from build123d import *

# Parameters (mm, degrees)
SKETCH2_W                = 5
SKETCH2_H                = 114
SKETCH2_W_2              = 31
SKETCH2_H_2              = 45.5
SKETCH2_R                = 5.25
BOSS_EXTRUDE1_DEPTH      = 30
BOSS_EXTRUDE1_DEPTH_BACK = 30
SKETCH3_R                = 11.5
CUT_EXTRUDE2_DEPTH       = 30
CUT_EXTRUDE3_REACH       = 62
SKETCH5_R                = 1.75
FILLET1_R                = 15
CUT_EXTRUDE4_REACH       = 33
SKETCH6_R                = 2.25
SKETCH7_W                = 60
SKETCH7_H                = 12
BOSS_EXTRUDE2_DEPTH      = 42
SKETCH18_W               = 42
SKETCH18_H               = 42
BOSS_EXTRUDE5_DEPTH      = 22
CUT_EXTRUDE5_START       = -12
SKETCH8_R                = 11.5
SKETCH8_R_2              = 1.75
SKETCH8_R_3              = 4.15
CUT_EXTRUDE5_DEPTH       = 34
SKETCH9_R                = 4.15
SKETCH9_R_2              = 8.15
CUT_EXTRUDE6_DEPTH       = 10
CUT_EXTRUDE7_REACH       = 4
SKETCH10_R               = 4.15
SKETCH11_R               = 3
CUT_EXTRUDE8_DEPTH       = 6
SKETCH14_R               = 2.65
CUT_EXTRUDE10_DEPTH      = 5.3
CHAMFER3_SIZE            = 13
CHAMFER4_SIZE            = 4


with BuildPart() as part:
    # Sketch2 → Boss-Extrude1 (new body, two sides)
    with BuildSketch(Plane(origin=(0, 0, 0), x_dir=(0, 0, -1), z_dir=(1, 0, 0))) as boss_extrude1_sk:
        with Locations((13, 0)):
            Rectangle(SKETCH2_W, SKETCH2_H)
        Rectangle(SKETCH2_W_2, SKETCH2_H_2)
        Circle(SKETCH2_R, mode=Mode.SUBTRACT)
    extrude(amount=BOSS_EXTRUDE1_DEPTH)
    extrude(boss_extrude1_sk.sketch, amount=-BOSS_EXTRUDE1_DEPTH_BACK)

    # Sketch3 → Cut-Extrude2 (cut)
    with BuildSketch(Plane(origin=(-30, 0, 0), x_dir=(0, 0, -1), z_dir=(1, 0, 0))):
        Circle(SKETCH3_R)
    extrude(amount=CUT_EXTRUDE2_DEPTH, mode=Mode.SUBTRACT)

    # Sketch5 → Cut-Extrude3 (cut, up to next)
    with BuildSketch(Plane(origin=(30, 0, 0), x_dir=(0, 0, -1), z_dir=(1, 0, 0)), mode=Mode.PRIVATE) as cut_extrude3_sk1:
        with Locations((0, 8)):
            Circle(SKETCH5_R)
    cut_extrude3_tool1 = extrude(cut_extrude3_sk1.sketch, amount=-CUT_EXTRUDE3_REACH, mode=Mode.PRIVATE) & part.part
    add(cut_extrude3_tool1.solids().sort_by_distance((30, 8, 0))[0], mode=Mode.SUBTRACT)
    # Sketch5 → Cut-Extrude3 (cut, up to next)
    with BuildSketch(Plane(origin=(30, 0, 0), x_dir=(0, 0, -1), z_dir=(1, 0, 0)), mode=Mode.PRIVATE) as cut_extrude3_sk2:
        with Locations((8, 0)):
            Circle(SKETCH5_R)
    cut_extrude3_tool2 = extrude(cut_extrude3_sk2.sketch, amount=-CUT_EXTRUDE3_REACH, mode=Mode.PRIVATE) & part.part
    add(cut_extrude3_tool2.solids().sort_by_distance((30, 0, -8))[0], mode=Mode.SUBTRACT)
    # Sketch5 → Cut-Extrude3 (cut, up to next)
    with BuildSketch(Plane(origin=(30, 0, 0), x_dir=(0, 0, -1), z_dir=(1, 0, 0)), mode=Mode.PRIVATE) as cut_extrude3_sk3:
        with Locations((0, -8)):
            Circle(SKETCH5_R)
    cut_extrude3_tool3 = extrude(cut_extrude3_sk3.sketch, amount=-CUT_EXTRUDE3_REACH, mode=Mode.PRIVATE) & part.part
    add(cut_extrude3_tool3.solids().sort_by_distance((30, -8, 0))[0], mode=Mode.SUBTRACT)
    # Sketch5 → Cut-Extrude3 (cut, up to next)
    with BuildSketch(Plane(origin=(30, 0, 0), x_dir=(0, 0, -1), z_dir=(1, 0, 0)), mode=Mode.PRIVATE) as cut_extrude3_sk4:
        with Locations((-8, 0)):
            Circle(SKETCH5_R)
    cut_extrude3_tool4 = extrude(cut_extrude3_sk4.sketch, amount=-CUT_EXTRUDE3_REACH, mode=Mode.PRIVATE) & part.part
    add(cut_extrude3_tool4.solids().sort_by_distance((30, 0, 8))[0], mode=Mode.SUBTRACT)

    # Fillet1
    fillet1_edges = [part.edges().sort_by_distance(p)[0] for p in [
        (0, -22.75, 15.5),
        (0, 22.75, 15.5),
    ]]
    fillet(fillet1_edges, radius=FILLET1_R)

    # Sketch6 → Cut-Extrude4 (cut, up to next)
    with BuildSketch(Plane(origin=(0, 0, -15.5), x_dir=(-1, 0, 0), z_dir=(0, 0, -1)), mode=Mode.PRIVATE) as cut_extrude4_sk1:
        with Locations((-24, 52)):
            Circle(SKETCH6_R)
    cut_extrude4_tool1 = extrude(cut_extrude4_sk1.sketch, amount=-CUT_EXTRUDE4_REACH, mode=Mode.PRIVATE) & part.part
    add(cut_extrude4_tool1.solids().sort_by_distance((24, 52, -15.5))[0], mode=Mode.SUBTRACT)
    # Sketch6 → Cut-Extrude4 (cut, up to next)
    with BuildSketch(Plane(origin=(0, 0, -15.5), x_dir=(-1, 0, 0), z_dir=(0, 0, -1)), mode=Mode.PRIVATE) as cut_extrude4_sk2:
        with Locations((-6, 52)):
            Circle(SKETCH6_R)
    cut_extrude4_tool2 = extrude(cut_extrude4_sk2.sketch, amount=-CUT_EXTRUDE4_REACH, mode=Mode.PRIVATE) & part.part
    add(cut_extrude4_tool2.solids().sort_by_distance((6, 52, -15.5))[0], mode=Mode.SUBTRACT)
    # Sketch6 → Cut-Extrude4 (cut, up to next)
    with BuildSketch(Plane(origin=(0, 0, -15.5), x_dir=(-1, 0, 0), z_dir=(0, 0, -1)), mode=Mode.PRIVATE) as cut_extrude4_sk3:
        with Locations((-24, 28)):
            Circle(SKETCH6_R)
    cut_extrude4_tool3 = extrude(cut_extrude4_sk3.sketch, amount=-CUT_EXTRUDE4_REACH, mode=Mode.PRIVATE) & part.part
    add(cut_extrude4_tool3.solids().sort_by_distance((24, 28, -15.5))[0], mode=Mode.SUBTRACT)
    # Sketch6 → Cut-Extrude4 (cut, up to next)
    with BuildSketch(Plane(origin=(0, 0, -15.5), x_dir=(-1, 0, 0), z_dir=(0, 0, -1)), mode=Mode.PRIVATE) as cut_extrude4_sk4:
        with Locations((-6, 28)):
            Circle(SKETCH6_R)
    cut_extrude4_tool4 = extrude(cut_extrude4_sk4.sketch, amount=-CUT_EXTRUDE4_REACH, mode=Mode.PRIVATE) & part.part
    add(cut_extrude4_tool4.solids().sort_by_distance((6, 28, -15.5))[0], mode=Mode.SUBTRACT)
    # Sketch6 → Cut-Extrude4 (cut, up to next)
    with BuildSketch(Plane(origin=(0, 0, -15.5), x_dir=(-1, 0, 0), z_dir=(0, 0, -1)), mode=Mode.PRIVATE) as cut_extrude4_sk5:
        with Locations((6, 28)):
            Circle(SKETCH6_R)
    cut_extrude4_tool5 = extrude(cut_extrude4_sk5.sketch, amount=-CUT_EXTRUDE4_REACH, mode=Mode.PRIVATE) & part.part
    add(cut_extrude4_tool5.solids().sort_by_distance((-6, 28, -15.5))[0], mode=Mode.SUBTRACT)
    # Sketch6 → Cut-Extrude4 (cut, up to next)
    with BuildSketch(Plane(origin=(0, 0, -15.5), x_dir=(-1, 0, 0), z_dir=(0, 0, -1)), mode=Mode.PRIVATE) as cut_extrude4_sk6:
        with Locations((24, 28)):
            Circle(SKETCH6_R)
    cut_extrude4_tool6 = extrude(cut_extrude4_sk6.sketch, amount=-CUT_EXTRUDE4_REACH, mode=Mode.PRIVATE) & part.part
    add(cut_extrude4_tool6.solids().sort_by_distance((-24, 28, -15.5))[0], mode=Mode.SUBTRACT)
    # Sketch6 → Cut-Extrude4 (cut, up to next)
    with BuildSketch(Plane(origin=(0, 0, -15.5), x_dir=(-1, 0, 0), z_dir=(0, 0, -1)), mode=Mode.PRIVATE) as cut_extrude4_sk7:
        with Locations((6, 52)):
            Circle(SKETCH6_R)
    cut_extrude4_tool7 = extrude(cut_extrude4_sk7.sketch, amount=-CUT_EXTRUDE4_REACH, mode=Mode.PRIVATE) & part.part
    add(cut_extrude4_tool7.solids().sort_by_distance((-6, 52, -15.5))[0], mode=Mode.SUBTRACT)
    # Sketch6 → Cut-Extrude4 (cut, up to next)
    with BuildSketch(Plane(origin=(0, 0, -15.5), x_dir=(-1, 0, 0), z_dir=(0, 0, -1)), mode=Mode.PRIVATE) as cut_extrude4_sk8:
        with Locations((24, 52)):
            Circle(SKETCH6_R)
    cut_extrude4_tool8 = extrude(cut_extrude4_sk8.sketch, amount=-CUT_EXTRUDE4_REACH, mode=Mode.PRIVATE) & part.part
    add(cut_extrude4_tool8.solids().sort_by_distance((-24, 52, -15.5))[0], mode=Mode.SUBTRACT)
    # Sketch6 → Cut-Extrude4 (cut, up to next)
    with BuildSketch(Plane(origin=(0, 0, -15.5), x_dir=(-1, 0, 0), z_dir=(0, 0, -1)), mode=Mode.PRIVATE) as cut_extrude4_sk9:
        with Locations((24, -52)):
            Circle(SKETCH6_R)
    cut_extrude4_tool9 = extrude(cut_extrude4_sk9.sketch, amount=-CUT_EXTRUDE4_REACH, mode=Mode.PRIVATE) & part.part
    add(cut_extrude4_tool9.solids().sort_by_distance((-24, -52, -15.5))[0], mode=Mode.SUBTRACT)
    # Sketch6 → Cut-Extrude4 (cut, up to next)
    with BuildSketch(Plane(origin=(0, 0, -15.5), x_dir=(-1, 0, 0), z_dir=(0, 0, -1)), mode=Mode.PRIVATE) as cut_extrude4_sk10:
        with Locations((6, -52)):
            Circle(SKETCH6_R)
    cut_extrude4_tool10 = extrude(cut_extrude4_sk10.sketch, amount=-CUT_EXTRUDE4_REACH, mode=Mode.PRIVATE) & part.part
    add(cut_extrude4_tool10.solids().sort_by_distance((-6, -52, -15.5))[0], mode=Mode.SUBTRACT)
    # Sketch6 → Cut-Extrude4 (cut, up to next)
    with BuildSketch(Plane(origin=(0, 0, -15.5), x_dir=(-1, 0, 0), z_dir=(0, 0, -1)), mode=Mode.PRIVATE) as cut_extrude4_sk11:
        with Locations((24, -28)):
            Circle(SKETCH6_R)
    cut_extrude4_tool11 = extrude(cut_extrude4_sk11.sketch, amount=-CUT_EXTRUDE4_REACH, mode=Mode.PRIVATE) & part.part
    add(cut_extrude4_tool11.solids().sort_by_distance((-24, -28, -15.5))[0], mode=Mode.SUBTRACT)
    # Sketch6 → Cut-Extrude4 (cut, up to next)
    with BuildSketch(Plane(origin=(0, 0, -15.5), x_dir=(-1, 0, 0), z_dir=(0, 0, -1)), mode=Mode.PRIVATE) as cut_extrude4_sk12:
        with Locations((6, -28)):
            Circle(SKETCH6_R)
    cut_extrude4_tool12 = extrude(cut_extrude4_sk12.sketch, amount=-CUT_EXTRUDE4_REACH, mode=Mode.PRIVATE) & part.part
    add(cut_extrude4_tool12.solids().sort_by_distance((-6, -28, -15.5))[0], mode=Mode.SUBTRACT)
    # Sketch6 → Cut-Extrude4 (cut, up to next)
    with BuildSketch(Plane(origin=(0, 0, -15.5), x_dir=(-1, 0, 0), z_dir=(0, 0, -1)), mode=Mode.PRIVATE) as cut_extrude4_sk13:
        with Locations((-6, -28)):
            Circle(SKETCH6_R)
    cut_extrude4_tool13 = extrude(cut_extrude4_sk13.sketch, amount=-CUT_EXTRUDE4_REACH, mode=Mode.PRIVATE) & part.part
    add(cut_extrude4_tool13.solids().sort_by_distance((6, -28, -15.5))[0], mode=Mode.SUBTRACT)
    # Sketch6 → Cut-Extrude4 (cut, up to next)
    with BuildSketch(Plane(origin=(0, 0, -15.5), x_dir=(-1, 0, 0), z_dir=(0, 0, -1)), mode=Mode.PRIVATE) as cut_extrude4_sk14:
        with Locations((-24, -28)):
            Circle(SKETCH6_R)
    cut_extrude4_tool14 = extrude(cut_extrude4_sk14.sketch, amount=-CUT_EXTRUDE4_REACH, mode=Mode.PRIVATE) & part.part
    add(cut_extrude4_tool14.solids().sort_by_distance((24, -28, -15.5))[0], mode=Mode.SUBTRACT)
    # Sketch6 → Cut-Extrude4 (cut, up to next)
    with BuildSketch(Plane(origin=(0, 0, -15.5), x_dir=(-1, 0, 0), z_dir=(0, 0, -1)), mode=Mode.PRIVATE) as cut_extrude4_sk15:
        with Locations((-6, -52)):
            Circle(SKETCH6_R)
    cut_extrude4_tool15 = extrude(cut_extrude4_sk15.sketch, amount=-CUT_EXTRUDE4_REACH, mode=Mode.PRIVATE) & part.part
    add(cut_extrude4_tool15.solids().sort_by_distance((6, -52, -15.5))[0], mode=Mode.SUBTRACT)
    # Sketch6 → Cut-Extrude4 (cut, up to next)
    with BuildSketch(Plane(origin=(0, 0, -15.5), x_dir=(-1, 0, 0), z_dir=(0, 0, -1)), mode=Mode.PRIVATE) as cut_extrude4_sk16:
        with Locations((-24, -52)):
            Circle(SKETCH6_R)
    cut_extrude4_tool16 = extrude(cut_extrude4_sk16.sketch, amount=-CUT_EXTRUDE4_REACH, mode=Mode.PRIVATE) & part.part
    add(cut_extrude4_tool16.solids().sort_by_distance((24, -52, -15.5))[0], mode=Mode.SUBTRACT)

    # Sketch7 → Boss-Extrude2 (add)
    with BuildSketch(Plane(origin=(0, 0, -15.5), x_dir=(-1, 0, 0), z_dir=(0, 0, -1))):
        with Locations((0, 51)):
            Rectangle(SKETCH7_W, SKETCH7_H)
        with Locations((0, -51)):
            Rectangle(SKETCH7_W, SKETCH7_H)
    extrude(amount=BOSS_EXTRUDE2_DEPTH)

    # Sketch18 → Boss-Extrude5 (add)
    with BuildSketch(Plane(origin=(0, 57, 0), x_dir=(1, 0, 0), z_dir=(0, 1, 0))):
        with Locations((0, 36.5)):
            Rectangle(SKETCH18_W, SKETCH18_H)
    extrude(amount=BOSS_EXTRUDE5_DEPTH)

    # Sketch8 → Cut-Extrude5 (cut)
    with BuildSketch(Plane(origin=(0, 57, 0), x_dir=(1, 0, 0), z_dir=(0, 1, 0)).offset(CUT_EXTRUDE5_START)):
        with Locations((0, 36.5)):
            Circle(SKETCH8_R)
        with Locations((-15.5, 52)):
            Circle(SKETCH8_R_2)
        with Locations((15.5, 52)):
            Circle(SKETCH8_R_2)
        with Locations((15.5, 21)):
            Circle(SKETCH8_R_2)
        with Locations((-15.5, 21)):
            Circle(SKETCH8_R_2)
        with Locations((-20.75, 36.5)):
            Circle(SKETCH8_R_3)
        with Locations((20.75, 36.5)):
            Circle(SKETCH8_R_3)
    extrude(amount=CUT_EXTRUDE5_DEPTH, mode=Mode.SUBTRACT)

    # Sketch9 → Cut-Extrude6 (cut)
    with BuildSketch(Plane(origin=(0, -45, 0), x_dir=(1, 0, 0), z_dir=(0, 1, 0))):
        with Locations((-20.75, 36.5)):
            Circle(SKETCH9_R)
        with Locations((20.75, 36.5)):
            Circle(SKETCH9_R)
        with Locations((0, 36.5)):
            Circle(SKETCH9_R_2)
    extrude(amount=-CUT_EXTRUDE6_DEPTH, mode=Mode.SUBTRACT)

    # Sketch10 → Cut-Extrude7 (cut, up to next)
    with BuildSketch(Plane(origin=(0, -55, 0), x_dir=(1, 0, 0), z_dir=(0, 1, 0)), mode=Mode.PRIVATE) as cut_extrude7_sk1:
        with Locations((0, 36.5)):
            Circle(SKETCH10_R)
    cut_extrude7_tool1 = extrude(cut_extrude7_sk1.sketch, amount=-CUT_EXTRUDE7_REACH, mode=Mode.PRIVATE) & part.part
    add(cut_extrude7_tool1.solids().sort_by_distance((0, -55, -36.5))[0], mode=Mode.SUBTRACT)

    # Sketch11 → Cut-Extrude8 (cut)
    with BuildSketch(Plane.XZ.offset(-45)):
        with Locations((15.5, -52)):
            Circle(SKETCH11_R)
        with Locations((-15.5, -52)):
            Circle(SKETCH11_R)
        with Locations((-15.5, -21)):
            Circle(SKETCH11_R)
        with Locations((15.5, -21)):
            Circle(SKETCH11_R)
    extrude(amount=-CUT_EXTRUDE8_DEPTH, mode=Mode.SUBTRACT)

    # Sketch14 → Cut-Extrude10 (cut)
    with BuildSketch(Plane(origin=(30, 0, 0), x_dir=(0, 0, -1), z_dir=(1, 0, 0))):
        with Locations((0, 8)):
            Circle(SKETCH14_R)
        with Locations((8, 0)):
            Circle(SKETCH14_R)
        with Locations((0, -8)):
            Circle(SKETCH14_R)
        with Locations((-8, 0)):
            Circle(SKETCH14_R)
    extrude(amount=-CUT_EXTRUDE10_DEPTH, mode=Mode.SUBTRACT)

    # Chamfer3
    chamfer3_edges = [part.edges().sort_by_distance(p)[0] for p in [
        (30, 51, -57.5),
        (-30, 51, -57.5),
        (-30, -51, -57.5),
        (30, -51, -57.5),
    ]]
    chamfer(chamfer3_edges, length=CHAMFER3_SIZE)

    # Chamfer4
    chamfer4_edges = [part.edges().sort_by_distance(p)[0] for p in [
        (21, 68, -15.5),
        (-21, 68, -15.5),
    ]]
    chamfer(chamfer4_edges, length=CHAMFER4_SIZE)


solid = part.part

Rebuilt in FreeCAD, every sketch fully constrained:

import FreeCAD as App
import Part
import Sketcher
from FreeCAD import Vector


def edges_at(feature, points):
    """Names of the edges that pass closest to the given points."""
    edges = feature.Shape.Edges
    near = lambda p: min(range(len(edges)), key=lambda i: edges[i].distToShape(Part.Vertex(*p))[0])
    return sorted({f"Edge{near(p) + 1}" for p in points})

doc = App.newDocument("Part")
params = doc.addObject("Spreadsheet::Sheet", "Params")
for row, (alias, value) in enumerate([
    ("sketch1_diameter", "10.5 mm"),
    ("sketch1_width", "114 mm"),
    ("sketch1_height", "5 mm"),
    ("sketch1_height2", "26 mm"),
    ("sketch1_width2", "45.5 mm"),
    ("pad1_length", "30 mm"),
    ("pad1_length2", "30 mm"),
    ("sketch2_diameter", "23 mm"),
    ("pocket1_length", "30 mm"),
    ("sketch3_diameter", "3.5 mm"),
    ("sketch4_diameter", "3.5 mm"),
    ("sketch5_diameter", "3.5 mm"),
    ("sketch6_diameter", "3.5 mm"),
    ("fillet_radius", "15 mm"),
    ("sketch7_diameter", "4.5 mm"),
    ("sketch8_diameter", "4.5 mm"),
    ("sketch9_diameter", "4.5 mm"),
    ("sketch10_diameter", "4.5 mm"),
    ("sketch11_diameter", "4.5 mm"),
    ("sketch12_diameter", "4.5 mm"),
    ("sketch13_diameter", "4.5 mm"),
    ("sketch14_diameter", "4.5 mm"),
    ("sketch15_diameter", "4.5 mm"),
    ("sketch16_diameter", "4.5 mm"),
    ("sketch17_diameter", "4.5 mm"),
    ("sketch18_diameter", "4.5 mm"),
    ("sketch19_diameter", "4.5 mm"),
    ("sketch20_diameter", "4.5 mm"),
    ("sketch21_diameter", "4.5 mm"),
    ("sketch22_diameter", "4.5 mm"),
    ("sketch23_width", "60 mm"),
    ("sketch23_height", "12 mm"),
    ("pad2_length", "42 mm"),
    ("sketch24_width", "42 mm"),
    ("pad3_length", "22 mm"),
    ("sketch25_diameter", "23 mm"),
    ("sketch25_diameter2", "3.5 mm"),
    ("sketch25_diameter3", "8.3 mm"),
    ("pocket22_length", "34 mm"),
    ("sketch26_diameter", "8.3 mm"),
    ("sketch26_diameter2", "16.3 mm"),
    ("pocket23_length", "10 mm"),
    ("sketch27_diameter", "8.3 mm"),
    ("sketch28_diameter", "6 mm"),
    ("pocket25_length", "6 mm"),
    ("sketch29_diameter", "5.3 mm"),
    ("pocket26_length", "5.3 mm"),
    ("chamfer_size", "13 mm"),
    ("chamfer2_size", "4 mm"),
], start=1):
    params.set(f"A{row}", alias)
    params.set(f"B{row}", "=" + value)
    params.setAlias(f"B{row}", alias)

body = doc.addObject("PartDesign::Body", "Body")

# Sketch on YZ plane
sketch1 = body.newObject("Sketcher::SketchObject", "Sketch")
sketch1.AttachmentSupport = (doc.getObject("YZ_Plane"), [""])
sketch1.MapMode = "FlatFace"
sketch1.addGeometry([
    Part.LineSegment(Vector(-22.75, -10.5, 0), Vector(-57, -10.5, 0)),  # 0
    Part.LineSegment(Vector(-57, -10.5, 0), Vector(-57, -15.5, 0)),  # 1
    Part.LineSegment(Vector(-57, -15.5, 0), Vector(57, -15.5, 0)),  # 2
    Part.LineSegment(Vector(57, -15.5, 0), Vector(57, -10.5, 0)),  # 3
    Part.LineSegment(Vector(57, -10.5, 0), Vector(22.75, -10.5, 0)),  # 4
    Part.LineSegment(Vector(22.75, -10.5, 0), Vector(22.75, 15.5, 0)),  # 5
    Part.LineSegment(Vector(22.75, 15.5, 0), Vector(-22.75, 15.5, 0)),  # 6
    Part.LineSegment(Vector(-22.75, 15.5, 0), Vector(-22.75, -10.5, 0)),  # 7
    Part.Circle(Vector(0, 0, 0), Vector(0, 0, 1), 5.25),  # 8
], False)
sketch1.addConstraint([
    Sketcher.Constraint("Coincident", 0, 2, 1, 1),
    Sketcher.Constraint("Coincident", 1, 2, 2, 1),
    Sketcher.Constraint("Coincident", 2, 2, 3, 1),
    Sketcher.Constraint("Coincident", 3, 2, 4, 1),
    Sketcher.Constraint("Coincident", 4, 2, 5, 1),
    Sketcher.Constraint("Coincident", 5, 2, 6, 1),
    Sketcher.Constraint("Coincident", 6, 2, 7, 1),
    Sketcher.Constraint("Coincident", 7, 2, 0, 1),
    Sketcher.Constraint("Horizontal", 0),
    Sketcher.Constraint("Vertical", 1),
    Sketcher.Constraint("Horizontal", 2),
    Sketcher.Constraint("Vertical", 3),
    Sketcher.Constraint("Horizontal", 4),
    Sketcher.Constraint("Vertical", 5),
    Sketcher.Constraint("Horizontal", 6),
    Sketcher.Constraint("Vertical", 7),
    Sketcher.Constraint("Coincident", 8, 3, -1, 1),
    Sketcher.Constraint("Symmetric", 0, 2, 3, 2, -2),
    Sketcher.Constraint("Equal", 0, 4),
    Sketcher.Constraint("Diameter", 8, 10.5),
    Sketcher.Constraint("DistanceX", 2, 1, 2, 2, 114.0),
    Sketcher.Constraint("DistanceY", 1, 2, 1, 1, 5.0),
    Sketcher.Constraint("DistanceY", 5, 1, 5, 2, 26.0),
    Sketcher.Constraint("DistanceX", 6, 2, 6, 1, 45.5),
    Sketcher.Constraint("DistanceY", 0, 2, -1, 1, 10.5),
])
sketch1.setExpression("Constraints[19]", "Params.sketch1_diameter")
sketch1.setExpression("Constraints[20]", "Params.sketch1_width")
sketch1.setExpression("Constraints[21]", "Params.sketch1_height")
sketch1.setExpression("Constraints[22]", "Params.sketch1_height2")
sketch1.setExpression("Constraints[23]", "Params.sketch1_width2")
pad1 = body.newObject("PartDesign::Pad", "Pad")
pad1.Profile = sketch1
pad1.Type = "TwoLengths"
pad1.setExpression("Length", "Params.pad1_length")
pad1.setExpression("Length2", "Params.pad1_length2")

# Sketch on YZ plane
sketch2 = body.newObject("Sketcher::SketchObject", "Sketch001")
sketch2.AttachmentSupport = (doc.getObject("YZ_Plane"), [""])
sketch2.MapMode = "FlatFace"
sketch2.AttachmentOffset = App.Placement(Vector(0, 0, -30), App.Rotation())
sketch2.addGeometry(Part.Circle(Vector(0, 0, 0), Vector(0, 0, 1), 11.5), False)
sketch2.addConstraint([
    Sketcher.Constraint("Coincident", 0, 3, -1, 1),
    Sketcher.Constraint("Diameter", 0, 23.0),
])
sketch2.setExpression("Constraints[1]", "Params.sketch2_diameter")
pocket1 = body.newObject("PartDesign::Pocket", "Pocket")
pocket1.Profile = sketch2
pocket1.setExpression("Length", "Params.pocket1_length")
pocket1.Reversed = True

# Sketch on YZ plane
sketch3 = body.newObject("Sketcher::SketchObject", "Sketch002")
sketch3.AttachmentSupport = (doc.getObject("YZ_Plane"), [""])
sketch3.MapMode = "FlatFace"
sketch3.AttachmentOffset = App.Placement(Vector(0, 0, 30), App.Rotation())
sketch3.addGeometry(Part.Circle(Vector(8, 0, 0), Vector(0, 0, 1), 1.75), False)
sketch3.addConstraint([
    Sketcher.Constraint("PointOnObject", 0, 3, -1),
    Sketcher.Constraint("Diameter", 0, 3.5),
    Sketcher.Constraint("DistanceX", -1, 1, 0, 3, 8.0),
])
sketch3.setExpression("Constraints[1]", "Params.sketch3_diameter")
pocket2 = body.newObject("PartDesign::Pocket", "Pocket001")
pocket2.Profile = sketch3
pocket2.Type = "UpToFirst"

# Sketch on YZ plane
sketch4 = body.newObject("Sketcher::SketchObject", "Sketch003")
sketch4.AttachmentSupport = (doc.getObject("YZ_Plane"), [""])
sketch4.MapMode = "FlatFace"
sketch4.AttachmentOffset = App.Placement(Vector(0, 0, 30), App.Rotation())
sketch4.addGeometry(Part.Circle(Vector(0, -8, 0), Vector(0, 0, 1), 1.75), False)
sketch4.addConstraint([
    Sketcher.Constraint("PointOnObject", 0, 3, -2),
    Sketcher.Constraint("Diameter", 0, 3.5),
    Sketcher.Constraint("DistanceY", 0, 3, -1, 1, 8.0),
])
sketch4.setExpression("Constraints[1]", "Params.sketch4_diameter")
pocket3 = body.newObject("PartDesign::Pocket", "Pocket002")
pocket3.Profile = sketch4
pocket3.Type = "UpToFirst"

# Sketch on YZ plane
sketch5 = body.newObject("Sketcher::SketchObject", "Sketch004")
sketch5.AttachmentSupport = (doc.getObject("YZ_Plane"), [""])
sketch5.MapMode = "FlatFace"
sketch5.AttachmentOffset = App.Placement(Vector(0, 0, 30), App.Rotation())
sketch5.addGeometry(Part.Circle(Vector(-8, 0, 0), Vector(0, 0, 1), 1.75), False)
sketch5.addConstraint([
    Sketcher.Constraint("PointOnObject", 0, 3, -1),
    Sketcher.Constraint("Diameter", 0, 3.5),
    Sketcher.Constraint("DistanceX", 0, 3, -1, 1, 8.0),
])
sketch5.setExpression("Constraints[1]", "Params.sketch5_diameter")
pocket4 = body.newObject("PartDesign::Pocket", "Pocket003")
pocket4.Profile = sketch5
pocket4.Type = "UpToFirst"

# Sketch on YZ plane
sketch6 = body.newObject("Sketcher::SketchObject", "Sketch005")
sketch6.AttachmentSupport = (doc.getObject("YZ_Plane"), [""])
sketch6.MapMode = "FlatFace"
sketch6.AttachmentOffset = App.Placement(Vector(0, 0, 30), App.Rotation())
sketch6.addGeometry(Part.Circle(Vector(0, 8, 0), Vector(0, 0, 1), 1.75), False)
sketch6.addConstraint([
    Sketcher.Constraint("PointOnObject", 0, 3, -2),
    Sketcher.Constraint("Diameter", 0, 3.5),
    Sketcher.Constraint("DistanceY", -1, 1, 0, 3, 8.0),
])
sketch6.setExpression("Constraints[1]", "Params.sketch6_diameter")
pocket5 = body.newObject("PartDesign::Pocket", "Pocket004")
pocket5.Profile = sketch6
pocket5.Type = "UpToFirst"
doc.recompute()

fillet = body.newObject("PartDesign::Fillet", "Fillet")
fillet.Base = (pocket5, edges_at(pocket5, [(0, -22.75, 15.5), (0, 22.75, 15.5)]))
fillet.setExpression("Radius", "Params.fillet_radius")

# Sketch on XY plane
sketch7 = body.newObject("Sketcher::SketchObject", "Sketch006")
sketch7.AttachmentSupport = (doc.getObject("XY_Plane"), [""])
sketch7.MapMode = "FlatFace"
sketch7.AttachmentOffset = App.Placement(Vector(0, 0, -15.5), App.Rotation())
sketch7.addGeometry(Part.Circle(Vector(24, 52, 0), Vector(0, 0, 1), 2.25), False)
sketch7.addConstraint([
    Sketcher.Constraint("Diameter", 0, 4.5),
    Sketcher.Constraint("DistanceX", -1, 1, 0, 3, 24.0),
    Sketcher.Constraint("DistanceY", -1, 1, 0, 3, 52.0),
])
sketch7.setExpression("Constraints[0]", "Params.sketch7_diameter")
pocket6 = body.newObject("PartDesign::Pocket", "Pocket005")
pocket6.Profile = sketch7
pocket6.Type = "UpToFirst"
pocket6.Reversed = True

# Sketch on XY plane
sketch8 = body.newObject("Sketcher::SketchObject", "Sketch007")
sketch8.AttachmentSupport = (doc.getObject("XY_Plane"), [""])
sketch8.MapMode = "FlatFace"
sketch8.AttachmentOffset = App.Placement(Vector(0, 0, -15.5), App.Rotation())
sketch8.addGeometry(Part.Circle(Vector(6, 52, 0), Vector(0, 0, 1), 2.25), False)
sketch8.addConstraint([
    Sketcher.Constraint("Diameter", 0, 4.5),
    Sketcher.Constraint("DistanceX", -1, 1, 0, 3, 6.0),
    Sketcher.Constraint("DistanceY", -1, 1, 0, 3, 52.0),
])
sketch8.setExpression("Constraints[0]", "Params.sketch8_diameter")
pocket7 = body.newObject("PartDesign::Pocket", "Pocket006")
pocket7.Profile = sketch8
pocket7.Type = "UpToFirst"
pocket7.Reversed = True

# Sketch on XY plane
sketch9 = body.newObject("Sketcher::SketchObject", "Sketch008")
sketch9.AttachmentSupport = (doc.getObject("XY_Plane"), [""])
sketch9.MapMode = "FlatFace"
sketch9.AttachmentOffset = App.Placement(Vector(0, 0, -15.5), App.Rotation())
sketch9.addGeometry(Part.Circle(Vector(24, 28, 0), Vector(0, 0, 1), 2.25), False)
sketch9.addConstraint([
    Sketcher.Constraint("Diameter", 0, 4.5),
    Sketcher.Constraint("DistanceX", -1, 1, 0, 3, 24.0),
    Sketcher.Constraint("DistanceY", -1, 1, 0, 3, 28.0),
])
sketch9.setExpression("Constraints[0]", "Params.sketch9_diameter")
pocket8 = body.newObject("PartDesign::Pocket", "Pocket007")
pocket8.Profile = sketch9
pocket8.Type = "UpToFirst"
pocket8.Reversed = True

# Sketch on XY plane
sketch10 = body.newObject("Sketcher::SketchObject", "Sketch009")
sketch10.AttachmentSupport = (doc.getObject("XY_Plane"), [""])
sketch10.MapMode = "FlatFace"
sketch10.AttachmentOffset = App.Placement(Vector(0, 0, -15.5), App.Rotation())
sketch10.addGeometry(Part.Circle(Vector(6, 28, 0), Vector(0, 0, 1), 2.25), False)
sketch10.addConstraint([
    Sketcher.Constraint("Diameter", 0, 4.5),
    Sketcher.Constraint("DistanceX", -1, 1, 0, 3, 6.0),
    Sketcher.Constraint("DistanceY", -1, 1, 0, 3, 28.0),
])
sketch10.setExpression("Constraints[0]", "Params.sketch10_diameter")
pocket9 = body.newObject("PartDesign::Pocket", "Pocket008")
pocket9.Profile = sketch10
pocket9.Type = "UpToFirst"
pocket9.Reversed = True

# Sketch on XY plane
sketch11 = body.newObject("Sketcher::SketchObject", "Sketch010")
sketch11.AttachmentSupport = (doc.getObject("XY_Plane"), [""])
sketch11.MapMode = "FlatFace"
sketch11.AttachmentOffset = App.Placement(Vector(0, 0, -15.5), App.Rotation())
sketch11.addGeometry(Part.Circle(Vector(-6, 28, 0), Vector(0, 0, 1), 2.25), False)
sketch11.addConstraint([
    Sketcher.Constraint("Diameter", 0, 4.5),
    Sketcher.Constraint("DistanceX", 0, 3, -1, 1, 6.0),
    Sketcher.Constraint("DistanceY", -1, 1, 0, 3, 28.0),
])
sketch11.setExpression("Constraints[0]", "Params.sketch11_diameter")
pocket10 = body.newObject("PartDesign::Pocket", "Pocket009")
pocket10.Profile = sketch11
pocket10.Type = "UpToFirst"
pocket10.Reversed = True

# Sketch on XY plane
sketch12 = body.newObject("Sketcher::SketchObject", "Sketch011")
sketch12.AttachmentSupport = (doc.getObject("XY_Plane"), [""])
sketch12.MapMode = "FlatFace"
sketch12.AttachmentOffset = App.Placement(Vector(0, 0, -15.5), App.Rotation())
sketch12.addGeometry(Part.Circle(Vector(-24, 28, 0), Vector(0, 0, 1), 2.25), False)
sketch12.addConstraint([
    Sketcher.Constraint("Diameter", 0, 4.5),
    Sketcher.Constraint("DistanceX", 0, 3, -1, 1, 24.0),
    Sketcher.Constraint("DistanceY", -1, 1, 0, 3, 28.0),
])
sketch12.setExpression("Constraints[0]", "Params.sketch12_diameter")
pocket11 = body.newObject("PartDesign::Pocket", "Pocket010")
pocket11.Profile = sketch12
pocket11.Type = "UpToFirst"
pocket11.Reversed = True

# Sketch on XY plane
sketch13 = body.newObject("Sketcher::SketchObject", "Sketch012")
sketch13.AttachmentSupport = (doc.getObject("XY_Plane"), [""])
sketch13.MapMode = "FlatFace"
sketch13.AttachmentOffset = App.Placement(Vector(0, 0, -15.5), App.Rotation())
sketch13.addGeometry(Part.Circle(Vector(-6, 52, 0), Vector(0, 0, 1), 2.25), False)
sketch13.addConstraint([
    Sketcher.Constraint("Diameter", 0, 4.5),
    Sketcher.Constraint("DistanceX", 0, 3, -1, 1, 6.0),
    Sketcher.Constraint("DistanceY", -1, 1, 0, 3, 52.0),
])
sketch13.setExpression("Constraints[0]", "Params.sketch13_diameter")
pocket12 = body.newObject("PartDesign::Pocket", "Pocket011")
pocket12.Profile = sketch13
pocket12.Type = "UpToFirst"
pocket12.Reversed = True

# Sketch on XY plane
sketch14 = body.newObject("Sketcher::SketchObject", "Sketch013")
sketch14.AttachmentSupport = (doc.getObject("XY_Plane"), [""])
sketch14.MapMode = "FlatFace"
sketch14.AttachmentOffset = App.Placement(Vector(0, 0, -15.5), App.Rotation())
sketch14.addGeometry(Part.Circle(Vector(-24, 52, 0), Vector(0, 0, 1), 2.25), False)
sketch14.addConstraint([
    Sketcher.Constraint("Diameter", 0, 4.5),
    Sketcher.Constraint("DistanceX", 0, 3, -1, 1, 24.0),
    Sketcher.Constraint("DistanceY", -1, 1, 0, 3, 52.0),
])
sketch14.setExpression("Constraints[0]", "Params.sketch14_diameter")
pocket13 = body.newObject("PartDesign::Pocket", "Pocket012")
pocket13.Profile = sketch14
pocket13.Type = "UpToFirst"
pocket13.Reversed = True

# Sketch on XY plane
sketch15 = body.newObject("Sketcher::SketchObject", "Sketch014")
sketch15.AttachmentSupport = (doc.getObject("XY_Plane"), [""])
sketch15.MapMode = "FlatFace"
sketch15.AttachmentOffset = App.Placement(Vector(0, 0, -15.5), App.Rotation())
sketch15.addGeometry(Part.Circle(Vector(-24, -52, 0), Vector(0, 0, 1), 2.25), False)
sketch15.addConstraint([
    Sketcher.Constraint("Diameter", 0, 4.5),
    Sketcher.Constraint("DistanceX", 0, 3, -1, 1, 24.0),
    Sketcher.Constraint("DistanceY", 0, 3, -1, 1, 52.0),
])
sketch15.setExpression("Constraints[0]", "Params.sketch15_diameter")
pocket14 = body.newObject("PartDesign::Pocket", "Pocket013")
pocket14.Profile = sketch15
pocket14.Type = "UpToFirst"
pocket14.Reversed = True

# Sketch on XY plane
sketch16 = body.newObject("Sketcher::SketchObject", "Sketch015")
sketch16.AttachmentSupport = (doc.getObject("XY_Plane"), [""])
sketch16.MapMode = "FlatFace"
sketch16.AttachmentOffset = App.Placement(Vector(0, 0, -15.5), App.Rotation())
sketch16.addGeometry(Part.Circle(Vector(-6, -52, 0), Vector(0, 0, 1), 2.25), False)
sketch16.addConstraint([
    Sketcher.Constraint("Diameter", 0, 4.5),
    Sketcher.Constraint("DistanceX", 0, 3, -1, 1, 6.0),
    Sketcher.Constraint("DistanceY", 0, 3, -1, 1, 52.0),
])
sketch16.setExpression("Constraints[0]", "Params.sketch16_diameter")
pocket15 = body.newObject("PartDesign::Pocket", "Pocket014")
pocket15.Profile = sketch16
pocket15.Type = "UpToFirst"
pocket15.Reversed = True

# Sketch on XY plane
sketch17 = body.newObject("Sketcher::SketchObject", "Sketch016")
sketch17.AttachmentSupport = (doc.getObject("XY_Plane"), [""])
sketch17.MapMode = "FlatFace"
sketch17.AttachmentOffset = App.Placement(Vector(0, 0, -15.5), App.Rotation())
sketch17.addGeometry(Part.Circle(Vector(-24, -28, 0), Vector(0, 0, 1), 2.25), False)
sketch17.addConstraint([
    Sketcher.Constraint("Diameter", 0, 4.5),
    Sketcher.Constraint("DistanceX", 0, 3, -1, 1, 24.0),
    Sketcher.Constraint("DistanceY", 0, 3, -1, 1, 28.0),
])
sketch17.setExpression("Constraints[0]", "Params.sketch17_diameter")
pocket16 = body.newObject("PartDesign::Pocket", "Pocket015")
pocket16.Profile = sketch17
pocket16.Type = "UpToFirst"
pocket16.Reversed = True

# Sketch on XY plane
sketch18 = body.newObject("Sketcher::SketchObject", "Sketch017")
sketch18.AttachmentSupport = (doc.getObject("XY_Plane"), [""])
sketch18.MapMode = "FlatFace"
sketch18.AttachmentOffset = App.Placement(Vector(0, 0, -15.5), App.Rotation())
sketch18.addGeometry(Part.Circle(Vector(-6, -28, 0), Vector(0, 0, 1), 2.25), False)
sketch18.addConstraint([
    Sketcher.Constraint("Diameter", 0, 4.5),
    Sketcher.Constraint("DistanceX", 0, 3, -1, 1, 6.0),
    Sketcher.Constraint("DistanceY", 0, 3, -1, 1, 28.0),
])
sketch18.setExpression("Constraints[0]", "Params.sketch18_diameter")
pocket17 = body.newObject("PartDesign::Pocket", "Pocket016")
pocket17.Profile = sketch18
pocket17.Type = "UpToFirst"
pocket17.Reversed = True

# Sketch on XY plane
sketch19 = body.newObject("Sketcher::SketchObject", "Sketch018")
sketch19.AttachmentSupport = (doc.getObject("XY_Plane"), [""])
sketch19.MapMode = "FlatFace"
sketch19.AttachmentOffset = App.Placement(Vector(0, 0, -15.5), App.Rotation())
sketch19.addGeometry(Part.Circle(Vector(6, -28, 0), Vector(0, 0, 1), 2.25), False)
sketch19.addConstraint([
    Sketcher.Constraint("Diameter", 0, 4.5),
    Sketcher.Constraint("DistanceX", -1, 1, 0, 3, 6.0),
    Sketcher.Constraint("DistanceY", 0, 3, -1, 1, 28.0),
])
sketch19.setExpression("Constraints[0]", "Params.sketch19_diameter")
pocket18 = body.newObject("PartDesign::Pocket", "Pocket017")
pocket18.Profile = sketch19
pocket18.Type = "UpToFirst"
pocket18.Reversed = True

# Sketch on XY plane
sketch20 = body.newObject("Sketcher::SketchObject", "Sketch019")
sketch20.AttachmentSupport = (doc.getObject("XY_Plane"), [""])
sketch20.MapMode = "FlatFace"
sketch20.AttachmentOffset = App.Placement(Vector(0, 0, -15.5), App.Rotation())
sketch20.addGeometry(Part.Circle(Vector(24, -28, 0), Vector(0, 0, 1), 2.25), False)
sketch20.addConstraint([
    Sketcher.Constraint("Diameter", 0, 4.5),
    Sketcher.Constraint("DistanceX", -1, 1, 0, 3, 24.0),
    Sketcher.Constraint("DistanceY", 0, 3, -1, 1, 28.0),
])
sketch20.setExpression("Constraints[0]", "Params.sketch20_diameter")
pocket19 = body.newObject("PartDesign::Pocket", "Pocket018")
pocket19.Profile = sketch20
pocket19.Type = "UpToFirst"
pocket19.Reversed = True

# Sketch on XY plane
sketch21 = body.newObject("Sketcher::SketchObject", "Sketch020")
sketch21.AttachmentSupport = (doc.getObject("XY_Plane"), [""])
sketch21.MapMode = "FlatFace"
sketch21.AttachmentOffset = App.Placement(Vector(0, 0, -15.5), App.Rotation())
sketch21.addGeometry(Part.Circle(Vector(6, -52, 0), Vector(0, 0, 1), 2.25), False)
sketch21.addConstraint([
    Sketcher.Constraint("Diameter", 0, 4.5),
    Sketcher.Constraint("DistanceX", -1, 1, 0, 3, 6.0),
    Sketcher.Constraint("DistanceY", 0, 3, -1, 1, 52.0),
])
sketch21.setExpression("Constraints[0]", "Params.sketch21_diameter")
pocket20 = body.newObject("PartDesign::Pocket", "Pocket019")
pocket20.Profile = sketch21
pocket20.Type = "UpToFirst"
pocket20.Reversed = True

# Sketch on XY plane
sketch22 = body.newObject("Sketcher::SketchObject", "Sketch021")
sketch22.AttachmentSupport = (doc.getObject("XY_Plane"), [""])
sketch22.MapMode = "FlatFace"
sketch22.AttachmentOffset = App.Placement(Vector(0, 0, -15.5), App.Rotation())
sketch22.addGeometry(Part.Circle(Vector(24, -52, 0), Vector(0, 0, 1), 2.25), False)
sketch22.addConstraint([
    Sketcher.Constraint("Diameter", 0, 4.5),
    Sketcher.Constraint("DistanceX", -1, 1, 0, 3, 24.0),
    Sketcher.Constraint("DistanceY", 0, 3, -1, 1, 52.0),
])
sketch22.setExpression("Constraints[0]", "Params.sketch22_diameter")
pocket21 = body.newObject("PartDesign::Pocket", "Pocket020")
pocket21.Profile = sketch22
pocket21.Type = "UpToFirst"
pocket21.Reversed = True

# Sketch on XY plane
sketch23 = body.newObject("Sketcher::SketchObject", "Sketch022")
sketch23.AttachmentSupport = (doc.getObject("XY_Plane"), [""])
sketch23.MapMode = "FlatFace"
sketch23.AttachmentOffset = App.Placement(Vector(0, 0, -15.5), App.Rotation())
sketch23.addGeometry([
    Part.LineSegment(Vector(30, 57, 0), Vector(30, 45, 0)),  # 0
    Part.LineSegment(Vector(30, 45, 0), Vector(-30, 45, 0)),  # 1
    Part.LineSegment(Vector(-30, 45, 0), Vector(-30, 57, 0)),  # 2
    Part.LineSegment(Vector(-30, 57, 0), Vector(30, 57, 0)),  # 3
    Part.LineSegment(Vector(30, -45, 0), Vector(30, -57, 0)),  # 4
    Part.LineSegment(Vector(30, -57, 0), Vector(-30, -57, 0)),  # 5
    Part.LineSegment(Vector(-30, -57, 0), Vector(-30, -45, 0)),  # 6
    Part.LineSegment(Vector(-30, -45, 0), Vector(30, -45, 0)),  # 7
], False)
sketch23.addConstraint([
    Sketcher.Constraint("Coincident", 0, 2, 1, 1),
    Sketcher.Constraint("Coincident", 1, 2, 2, 1),
    Sketcher.Constraint("Coincident", 2, 2, 3, 1),
    Sketcher.Constraint("Coincident", 3, 2, 0, 1),
    Sketcher.Constraint("Coincident", 4, 2, 5, 1),
    Sketcher.Constraint("Coincident", 5, 2, 6, 1),
    Sketcher.Constraint("Coincident", 6, 2, 7, 1),
    Sketcher.Constraint("Coincident", 7, 2, 4, 1),
    Sketcher.Constraint("Vertical", 0),
    Sketcher.Constraint("Horizontal", 1),
    Sketcher.Constraint("Vertical", 2),
    Sketcher.Constraint("Horizontal", 3),
    Sketcher.Constraint("Vertical", 4),
    Sketcher.Constraint("Horizontal", 5),
    Sketcher.Constraint("Vertical", 6),
    Sketcher.Constraint("Horizontal", 7),
    Sketcher.Constraint("Symmetric", 2, 2, 4, 2, -1, 1),
    Sketcher.Constraint("Symmetric", 0, 2, 6, 2, -1, 1),
    Sketcher.Constraint("Vertical", 3, 2, 4, 2),
    Sketcher.Constraint("DistanceX", 1, 2, 1, 1, 60.0),
    Sketcher.Constraint("DistanceY", 0, 2, 0, 1, 12.0),
    Sketcher.Constraint("DistanceY", -1, 1, 0, 2, 45.0),
])
sketch23.setExpression("Constraints[19]", "Params.sketch23_width")
sketch23.setExpression("Constraints[20]", "Params.sketch23_height")
pad2 = body.newObject("PartDesign::Pad", "Pad001")
pad2.Profile = sketch23
pad2.setExpression("Length", "Params.pad2_length")
pad2.Reversed = True

# Sketch on XZ plane
sketch24 = body.newObject("Sketcher::SketchObject", "Sketch023")
sketch24.AttachmentSupport = (doc.getObject("XZ_Plane"), [""])
sketch24.MapMode = "FlatFace"
sketch24.AttachmentOffset = App.Placement(Vector(0, 0, -57), App.Rotation())
sketch24.addGeometry([
    Part.LineSegment(Vector(-21, -57.5, 0), Vector(-21, -15.5, 0)),
    Part.LineSegment(Vector(-21, -15.5, 0), Vector(21, -15.5, 0)),
    Part.LineSegment(Vector(21, -15.5, 0), Vector(21, -57.5, 0)),
    Part.LineSegment(Vector(21, -57.5, 0), Vector(-21, -57.5, 0)),
], False)
sketch24.addConstraint([
    Sketcher.Constraint("Coincident", 0, 2, 1, 1),
    Sketcher.Constraint("Coincident", 1, 2, 2, 1),
    Sketcher.Constraint("Coincident", 2, 2, 3, 1),
    Sketcher.Constraint("Coincident", 3, 2, 0, 1),
    Sketcher.Constraint("Vertical", 0),
    Sketcher.Constraint("Horizontal", 1),
    Sketcher.Constraint("Vertical", 2),
    Sketcher.Constraint("Horizontal", 3),
    Sketcher.Constraint("Equal", 3, 0),
    Sketcher.Constraint("DistanceX", 1, 1, 1, 2, 42.0),
    Sketcher.Constraint("DistanceX", 0, 2, -1, 1, 21.0),
    Sketcher.Constraint("DistanceY", 0, 2, -1, 1, 15.5),
])
sketch24.setExpression("Constraints[9]", "Params.sketch24_width")
pad3 = body.newObject("PartDesign::Pad", "Pad002")
pad3.Profile = sketch24
pad3.setExpression("Length", "Params.pad3_length")
pad3.Reversed = True

# Sketch on XZ plane
sketch25 = body.newObject("Sketcher::SketchObject", "Sketch024")
sketch25.AttachmentSupport = (doc.getObject("XZ_Plane"), [""])
sketch25.MapMode = "FlatFace"
sketch25.AttachmentOffset = App.Placement(Vector(0, 0, -45), App.Rotation())
sketch25.addGeometry([
    Part.Circle(Vector(0, -36.5, 0), Vector(0, 0, 1), 11.5),  # 0
    Part.Circle(Vector(-15.5, -52, 0), Vector(0, 0, 1), 1.75),  # 1
    Part.Circle(Vector(15.5, -52, 0), Vector(0, 0, 1), 1.75),  # 2
    Part.Circle(Vector(15.5, -21, 0), Vector(0, 0, 1), 1.75),  # 3
    Part.Circle(Vector(-15.5, -21, 0), Vector(0, 0, 1), 1.75),  # 4
    Part.Circle(Vector(-20.75, -36.5, 0), Vector(0, 0, 1), 4.15),  # 5
    Part.Circle(Vector(20.75, -36.5, 0), Vector(0, 0, 1), 4.15),  # 6
], False)
sketch25.addConstraint([
    Sketcher.Constraint("Equal", 1, 2),
    Sketcher.Constraint("Equal", 2, 3),
    Sketcher.Constraint("Equal", 3, 4),
    Sketcher.Constraint("Equal", 5, 6),
    Sketcher.Constraint("Symmetric", 1, 3, 2, 3, -2),
    Sketcher.Constraint("Symmetric", 3, 3, 4, 3, -2),
    Sketcher.Constraint("Symmetric", 5, 3, 6, 3, -2),
    Sketcher.Constraint("PointOnObject", 0, 3, -2),
    Sketcher.Constraint("Horizontal", 0, 3, 5, 3),
    Sketcher.Constraint("Vertical", 2, 3, 3, 3),
    Sketcher.Constraint("Diameter", 0, 23.0),
    Sketcher.Constraint("Diameter", 1, 3.5),
    Sketcher.Constraint("Diameter", 5, 8.3),
    Sketcher.Constraint("DistanceY", 1, 3, -1, 1, 52.0),
    Sketcher.Constraint("DistanceY", 3, 3, -1, 1, 21.0),
    Sketcher.Constraint("DistanceX", 1, 3, 2, 3, 31.0),
    Sketcher.Constraint("DistanceY", 0, 3, -1, 1, 36.5),
    Sketcher.Constraint("DistanceX", 5, 3, -1, 1, 20.75),
])
sketch25.setExpression("Constraints[10]", "Params.sketch25_diameter")
sketch25.setExpression("Constraints[11]", "Params.sketch25_diameter2")
sketch25.setExpression("Constraints[12]", "Params.sketch25_diameter3")
pocket22 = body.newObject("PartDesign::Pocket", "Pocket021")
pocket22.Profile = sketch25
pocket22.setExpression("Length", "Params.pocket22_length")

# Sketch on XZ plane
sketch26 = body.newObject("Sketcher::SketchObject", "Sketch025")
sketch26.AttachmentSupport = (doc.getObject("XZ_Plane"), [""])
sketch26.MapMode = "FlatFace"
sketch26.AttachmentOffset = App.Placement(Vector(0, 0, 45), App.Rotation())
sketch26.addGeometry([
    Part.Circle(Vector(-20.75, -36.5, 0), Vector(0, 0, 1), 4.15),
    Part.Circle(Vector(20.75, -36.5, 0), Vector(0, 0, 1), 4.15),
    Part.Circle(Vector(0, -36.5, 0), Vector(0, 0, 1), 8.15),
], False)
sketch26.addConstraint([
    Sketcher.Constraint("Equal", 0, 1),
    Sketcher.Constraint("Symmetric", 0, 3, 1, 3, -2),
    Sketcher.Constraint("PointOnObject", 2, 3, -2),
    Sketcher.Constraint("Horizontal", 1, 3, 2, 3),
    Sketcher.Constraint("Diameter", 0, 8.3),
    Sketcher.Constraint("Diameter", 2, 16.3),
    Sketcher.Constraint("DistanceY", 0, 3, -1, 1, 36.5),
    Sketcher.Constraint("DistanceX", 0, 3, 1, 3, 41.5),
])
sketch26.setExpression("Constraints[4]", "Params.sketch26_diameter")
sketch26.setExpression("Constraints[5]", "Params.sketch26_diameter2")
pocket23 = body.newObject("PartDesign::Pocket", "Pocket022")
pocket23.Profile = sketch26
pocket23.setExpression("Length", "Params.pocket23_length")
pocket23.Reversed = True

# Sketch on XZ plane
sketch27 = body.newObject("Sketcher::SketchObject", "Sketch026")
sketch27.AttachmentSupport = (doc.getObject("XZ_Plane"), [""])
sketch27.MapMode = "FlatFace"
sketch27.AttachmentOffset = App.Placement(Vector(0, 0, 55), App.Rotation())
sketch27.addGeometry(Part.Circle(Vector(0, -36.5, 0), Vector(0, 0, 1), 4.15), False)
sketch27.addConstraint([
    Sketcher.Constraint("PointOnObject", 0, 3, -2),
    Sketcher.Constraint("Diameter", 0, 8.3),
    Sketcher.Constraint("DistanceY", 0, 3, -1, 1, 36.5),
])
sketch27.setExpression("Constraints[1]", "Params.sketch27_diameter")
pocket24 = body.newObject("PartDesign::Pocket", "Pocket023")
pocket24.Profile = sketch27
pocket24.Type = "UpToFirst"
pocket24.Reversed = True

# Sketch on XZ plane
sketch28 = body.newObject("Sketcher::SketchObject", "Sketch027")
sketch28.AttachmentSupport = (doc.getObject("XZ_Plane"), [""])
sketch28.MapMode = "FlatFace"
sketch28.AttachmentOffset = App.Placement(Vector(0, 0, -45), App.Rotation())
sketch28.addGeometry([
    Part.Circle(Vector(15.5, -52, 0), Vector(0, 0, 1), 3),
    Part.Circle(Vector(-15.5, -52, 0), Vector(0, 0, 1), 3),
    Part.Circle(Vector(-15.5, -21, 0), Vector(0, 0, 1), 3),
    Part.Circle(Vector(15.5, -21, 0), Vector(0, 0, 1), 3),
], False)
sketch28.addConstraint([
    Sketcher.Constraint("Equal", 0, 1),
    Sketcher.Constraint("Equal", 1, 2),
    Sketcher.Constraint("Equal", 2, 3),
    Sketcher.Constraint("Symmetric", 0, 3, 1, 3, -2),
    Sketcher.Constraint("Symmetric", 2, 3, 3, 3, -2),
    Sketcher.Constraint("Vertical", 1, 3, 2, 3),
    Sketcher.Constraint("Diameter", 0, 6.0),
    Sketcher.Constraint("DistanceY", 0, 3, -1, 1, 52.0),
    Sketcher.Constraint("DistanceY", 2, 3, -1, 1, 21.0),
    Sketcher.Constraint("DistanceX", 1, 3, 0, 3, 31.0),
])
sketch28.setExpression("Constraints[6]", "Params.sketch28_diameter")
pocket25 = body.newObject("PartDesign::Pocket", "Pocket024")
pocket25.Profile = sketch28
pocket25.setExpression("Length", "Params.pocket25_length")

# Sketch on YZ plane
sketch29 = body.newObject("Sketcher::SketchObject", "Sketch028")
sketch29.AttachmentSupport = (doc.getObject("YZ_Plane"), [""])
sketch29.MapMode = "FlatFace"
sketch29.AttachmentOffset = App.Placement(Vector(0, 0, 30), App.Rotation())
sketch29.addGeometry([
    Part.Circle(Vector(8, 0, 0), Vector(0, 0, 1), 2.65),
    Part.Circle(Vector(0, -8, 0), Vector(0, 0, 1), 2.65),
    Part.Circle(Vector(-8, 0, 0), Vector(0, 0, 1), 2.65),
    Part.Circle(Vector(0, 8, 0), Vector(0, 0, 1), 2.65),
], False)
sketch29.addConstraint([
    Sketcher.Constraint("Equal", 0, 1),
    Sketcher.Constraint("Equal", 1, 2),
    Sketcher.Constraint("Equal", 2, 3),
    Sketcher.Constraint("Symmetric", 0, 3, 2, 3, -1, 1),
    Sketcher.Constraint("Symmetric", 1, 3, 3, 3, -1, 1),
    Sketcher.Constraint("PointOnObject", 0, 3, -1),
    Sketcher.Constraint("PointOnObject", 1, 3, -2),
    Sketcher.Constraint("Diameter", 0, 5.3),
    Sketcher.Constraint("DistanceX", -1, 1, 0, 3, 8.0),
    Sketcher.Constraint("DistanceY", 1, 3, -1, 1, 8.0),
])
sketch29.setExpression("Constraints[7]", "Params.sketch29_diameter")
pocket26 = body.newObject("PartDesign::Pocket", "Pocket025")
pocket26.Profile = sketch29
pocket26.setExpression("Length", "Params.pocket26_length")
doc.recompute()

chamfer = body.newObject("PartDesign::Chamfer", "Chamfer")
chamfer.Base = (pocket26, edges_at(pocket26, [
    (30, 51, -57.5),
    (-30, 51, -57.5),
    (-30, -51, -57.5),
    (30, -51, -57.5),
]))
chamfer.setExpression("Size", "Params.chamfer_size")
doc.recompute()

chamfer2 = body.newObject("PartDesign::Chamfer", "Chamfer001")
chamfer2.Base = (chamfer, edges_at(chamfer, [(21, 68, -15.5), (-21, 68, -15.5)]))
chamfer2.setExpression("Size", "Params.chamfer2_size")

doc.recompute()
